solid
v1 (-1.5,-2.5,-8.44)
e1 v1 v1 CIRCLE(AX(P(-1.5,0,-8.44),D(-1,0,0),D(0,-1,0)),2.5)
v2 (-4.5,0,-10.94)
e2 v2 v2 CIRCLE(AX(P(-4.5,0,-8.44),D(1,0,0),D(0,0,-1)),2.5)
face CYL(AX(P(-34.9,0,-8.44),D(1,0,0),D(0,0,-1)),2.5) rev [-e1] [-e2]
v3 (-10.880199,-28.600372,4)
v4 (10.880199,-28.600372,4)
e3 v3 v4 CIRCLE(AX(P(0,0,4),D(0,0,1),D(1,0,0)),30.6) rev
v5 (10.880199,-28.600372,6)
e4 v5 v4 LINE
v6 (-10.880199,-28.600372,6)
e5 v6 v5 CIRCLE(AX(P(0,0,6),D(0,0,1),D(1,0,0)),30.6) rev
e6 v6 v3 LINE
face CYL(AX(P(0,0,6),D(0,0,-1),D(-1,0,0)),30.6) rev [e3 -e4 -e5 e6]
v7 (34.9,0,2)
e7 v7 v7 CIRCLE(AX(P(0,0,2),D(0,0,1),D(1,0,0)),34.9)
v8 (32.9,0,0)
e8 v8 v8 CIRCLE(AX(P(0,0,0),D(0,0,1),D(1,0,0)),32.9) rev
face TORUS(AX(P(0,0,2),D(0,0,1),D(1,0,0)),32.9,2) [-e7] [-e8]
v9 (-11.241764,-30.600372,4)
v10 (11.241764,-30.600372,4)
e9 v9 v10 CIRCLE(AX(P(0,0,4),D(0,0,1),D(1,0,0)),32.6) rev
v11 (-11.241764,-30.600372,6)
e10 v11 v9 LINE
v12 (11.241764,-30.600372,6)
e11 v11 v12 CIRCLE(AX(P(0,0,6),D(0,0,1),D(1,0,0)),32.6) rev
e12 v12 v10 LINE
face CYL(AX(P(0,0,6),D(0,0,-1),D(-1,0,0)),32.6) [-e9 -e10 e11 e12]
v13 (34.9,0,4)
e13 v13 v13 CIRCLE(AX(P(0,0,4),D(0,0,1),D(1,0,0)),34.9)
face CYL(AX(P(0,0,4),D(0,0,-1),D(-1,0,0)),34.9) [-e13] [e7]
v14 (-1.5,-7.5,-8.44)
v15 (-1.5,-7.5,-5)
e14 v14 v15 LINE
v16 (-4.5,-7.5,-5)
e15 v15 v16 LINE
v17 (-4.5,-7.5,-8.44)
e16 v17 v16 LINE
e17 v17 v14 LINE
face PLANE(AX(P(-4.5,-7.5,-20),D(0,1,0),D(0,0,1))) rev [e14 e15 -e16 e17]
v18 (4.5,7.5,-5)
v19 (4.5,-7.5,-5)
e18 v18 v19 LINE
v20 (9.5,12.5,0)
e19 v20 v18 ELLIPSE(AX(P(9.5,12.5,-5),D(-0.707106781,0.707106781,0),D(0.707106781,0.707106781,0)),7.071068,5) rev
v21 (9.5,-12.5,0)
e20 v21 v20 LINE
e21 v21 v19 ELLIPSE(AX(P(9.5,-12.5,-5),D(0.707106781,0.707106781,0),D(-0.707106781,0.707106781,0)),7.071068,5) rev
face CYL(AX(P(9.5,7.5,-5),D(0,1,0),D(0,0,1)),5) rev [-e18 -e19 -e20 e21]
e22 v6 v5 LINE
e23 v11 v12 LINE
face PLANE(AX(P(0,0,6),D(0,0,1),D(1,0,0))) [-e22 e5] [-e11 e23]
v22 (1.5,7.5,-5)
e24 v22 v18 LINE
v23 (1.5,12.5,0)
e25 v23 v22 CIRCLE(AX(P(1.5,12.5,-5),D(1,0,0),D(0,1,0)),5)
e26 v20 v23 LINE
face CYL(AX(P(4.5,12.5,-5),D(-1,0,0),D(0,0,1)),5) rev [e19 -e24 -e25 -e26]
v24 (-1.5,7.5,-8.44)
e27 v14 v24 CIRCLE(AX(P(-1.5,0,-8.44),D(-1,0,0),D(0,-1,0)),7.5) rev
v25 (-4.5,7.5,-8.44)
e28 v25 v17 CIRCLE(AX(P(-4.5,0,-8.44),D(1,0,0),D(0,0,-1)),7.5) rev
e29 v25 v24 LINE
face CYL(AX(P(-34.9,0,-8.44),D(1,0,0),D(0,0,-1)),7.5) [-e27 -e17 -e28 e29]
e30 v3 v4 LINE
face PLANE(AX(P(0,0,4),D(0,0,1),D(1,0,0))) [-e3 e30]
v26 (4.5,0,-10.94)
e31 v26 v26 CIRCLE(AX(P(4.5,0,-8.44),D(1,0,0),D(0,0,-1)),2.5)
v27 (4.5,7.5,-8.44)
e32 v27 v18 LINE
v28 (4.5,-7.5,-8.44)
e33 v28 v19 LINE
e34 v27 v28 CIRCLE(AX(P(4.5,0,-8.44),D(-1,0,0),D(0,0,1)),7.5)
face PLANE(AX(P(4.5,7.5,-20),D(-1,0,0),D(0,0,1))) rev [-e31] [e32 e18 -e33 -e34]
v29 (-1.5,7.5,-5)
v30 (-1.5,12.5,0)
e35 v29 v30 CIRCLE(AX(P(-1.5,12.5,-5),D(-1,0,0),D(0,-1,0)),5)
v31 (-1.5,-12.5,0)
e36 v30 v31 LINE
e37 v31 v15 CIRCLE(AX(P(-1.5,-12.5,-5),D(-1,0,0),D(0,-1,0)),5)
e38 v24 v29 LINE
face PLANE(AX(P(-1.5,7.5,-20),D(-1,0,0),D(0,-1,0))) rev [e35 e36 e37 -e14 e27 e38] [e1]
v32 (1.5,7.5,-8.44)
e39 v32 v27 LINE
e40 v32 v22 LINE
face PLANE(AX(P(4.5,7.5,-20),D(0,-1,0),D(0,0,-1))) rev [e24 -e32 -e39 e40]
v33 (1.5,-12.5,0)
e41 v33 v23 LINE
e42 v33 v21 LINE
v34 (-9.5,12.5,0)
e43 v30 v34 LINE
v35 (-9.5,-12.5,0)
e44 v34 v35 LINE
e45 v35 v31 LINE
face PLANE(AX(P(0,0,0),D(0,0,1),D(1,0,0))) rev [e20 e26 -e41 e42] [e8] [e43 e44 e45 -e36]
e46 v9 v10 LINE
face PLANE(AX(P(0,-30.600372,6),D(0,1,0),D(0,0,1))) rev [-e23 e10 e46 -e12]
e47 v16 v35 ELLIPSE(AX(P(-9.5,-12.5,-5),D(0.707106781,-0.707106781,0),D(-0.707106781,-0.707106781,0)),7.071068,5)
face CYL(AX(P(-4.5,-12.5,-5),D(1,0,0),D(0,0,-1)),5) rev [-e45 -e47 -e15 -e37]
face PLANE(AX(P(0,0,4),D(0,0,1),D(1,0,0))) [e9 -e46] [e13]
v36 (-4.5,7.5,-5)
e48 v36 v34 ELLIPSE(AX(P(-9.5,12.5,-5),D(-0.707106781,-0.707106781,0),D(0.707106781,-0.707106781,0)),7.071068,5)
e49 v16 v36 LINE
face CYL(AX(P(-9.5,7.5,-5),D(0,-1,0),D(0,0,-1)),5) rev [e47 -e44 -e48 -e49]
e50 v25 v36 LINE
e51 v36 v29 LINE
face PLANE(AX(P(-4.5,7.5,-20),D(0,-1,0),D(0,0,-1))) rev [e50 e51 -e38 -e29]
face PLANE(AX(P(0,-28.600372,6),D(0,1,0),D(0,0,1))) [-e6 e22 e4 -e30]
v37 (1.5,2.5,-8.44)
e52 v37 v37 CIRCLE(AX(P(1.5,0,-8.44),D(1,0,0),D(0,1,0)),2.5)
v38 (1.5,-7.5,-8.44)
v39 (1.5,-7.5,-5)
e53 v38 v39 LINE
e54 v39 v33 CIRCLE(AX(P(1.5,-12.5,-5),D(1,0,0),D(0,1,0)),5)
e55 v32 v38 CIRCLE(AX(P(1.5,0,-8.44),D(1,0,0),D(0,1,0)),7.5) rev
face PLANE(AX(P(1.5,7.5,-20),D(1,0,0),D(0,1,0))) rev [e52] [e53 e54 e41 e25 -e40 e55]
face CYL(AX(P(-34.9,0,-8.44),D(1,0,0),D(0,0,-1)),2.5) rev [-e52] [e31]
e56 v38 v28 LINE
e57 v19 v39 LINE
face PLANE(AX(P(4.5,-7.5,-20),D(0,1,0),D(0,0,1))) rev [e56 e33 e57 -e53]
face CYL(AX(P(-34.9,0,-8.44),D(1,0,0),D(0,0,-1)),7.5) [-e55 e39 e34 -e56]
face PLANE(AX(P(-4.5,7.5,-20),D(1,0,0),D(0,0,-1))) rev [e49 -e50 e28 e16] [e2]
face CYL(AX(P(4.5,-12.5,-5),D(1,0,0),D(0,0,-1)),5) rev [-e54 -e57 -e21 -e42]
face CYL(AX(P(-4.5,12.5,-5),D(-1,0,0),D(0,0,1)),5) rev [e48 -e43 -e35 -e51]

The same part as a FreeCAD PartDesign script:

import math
import FreeCAD as App
import Part
import Sketcher
from FreeCAD import Vector
Q = App.Units.Quantity


def edges_at(feature, points):
    """Names of the edges that pass closest to the given points."""
    edges = feature.Shape.Edges
    near = lambda p: min(range(len(edges)), key=lambda i: edges[i].distToShape(Part.Vertex(*p))[0])
    return sorted({f"Edge{near(p) + 1}" for p in points})


def add_polygon(sketch, points):
    """Adds a closed chain of lines whose ends are joined by coincident constraints."""
    first, n = sketch.GeometryCount, len(points)
    for a, b in zip(points, points[1:] + points[:1]):
        sketch.addGeometry(Part.LineSegment(App.Vector(*a, 0), App.Vector(*b, 0)), False)
    for i in range(n):
        sketch.addConstraint(Sketcher.Constraint("Coincident", first + i, 2, first + (i + 1) % n, 1))

doc = App.newDocument("Part")
body = doc.addObject("PartDesign::Body", "Body")

# Sketch on XY plane
sketch1 = body.newObject("Sketcher::SketchObject", "Sketch")
sketch1.AttachmentSupport = (doc.getObject("XY_Plane"), [""])
sketch1.MapMode = "FlatFace"
sketch1.addGeometry(Part.Circle(Vector(0, 0, 0), Vector(0, 0, 1), 34.9), False)
sketch1.addConstraint([
    Sketcher.Constraint("Coincident", 0, 3, -1, 1),
    Sketcher.Constraint("Diameter", 0, Q("69.8 mm")),
])
pad1 = body.newObject("PartDesign::Pad", "Pad")
pad1.Profile = sketch1
pad1.Length = 4

# Sketch on XY plane
sketch2 = body.newObject("Sketcher::SketchObject", "Sketch001")
sketch2.AttachmentSupport = (doc.getObject("XY_Plane"), [""])
sketch2.MapMode = "FlatFace"
add_polygon(sketch2, [(-1.5, 7.5), (-1.5, -7.5), (-4.5, -7.5), (-4.5, 7.5)])  # lines 0-3
add_polygon(sketch2, [(4.5, 7.5), (4.5, -7.5), (1.5, -7.5), (1.5, 7.5)])  # lines 4-7
sketch2.addConstraint([
    Sketcher.Constraint("Vertical", 0),
    Sketcher.Constraint("Horizontal", 1),
    Sketcher.Constraint("Vertical", 2),
    Sketcher.Constraint("Horizontal", 3),
    Sketcher.Constraint("Vertical", 4),
    Sketcher.Constraint("Horizontal", 5),
    Sketcher.Constraint("Vertical", 6),
    Sketcher.Constraint("Horizontal", 7),
    Sketcher.Constraint("Symmetric", 2, 2, 4, 2, -1, 1),
    Sketcher.Constraint("Symmetric", 0, 2, 6, 2, -1, 1),
    Sketcher.Constraint("Horizontal", 1, 2, 4, 2),
    Sketcher.Constraint("DistanceX", 1, 2, 1, 1, Q("3 mm")),
    Sketcher.Constraint("DistanceY", 0, 2, 0, 1, Q("15 mm")),
    Sketcher.Constraint("DistanceX", 0, 2, 4, 2, Q("6 mm")),
])
pad2 = body.newObject("PartDesign::Pad", "Pad001")
pad2.Profile = sketch2
pad2.Length = 20
pad2.Reversed = True

# Sketch on YZ plane
sketch3 = body.newObject("Sketcher::SketchObject", "Sketch002")
sketch3.AttachmentSupport = (doc.getObject("YZ_Plane"), [""])
sketch3.MapMode = "FlatFace"
sketch3.AttachmentOffset = App.Placement(Vector(0, 0, 4.5), App.Rotation())
sketch3.addGeometry([
    Part.LineSegment(Vector(7.5, -20, 0), Vector(7.5, -8.44, 0)),
    Part.ArcOfCircle(Part.Circle(Vector(0, -8.44, 0), Vector(0, 0, 1), 7.5), math.radians(180), math.radians(360)),
    Part.LineSegment(Vector(-7.5, -8.44, 0), Vector(-7.5, -20, 0)),
    Part.LineSegment(Vector(-7.5, -20, 0), Vector(7.5, -20, 0)),
], False)
sketch3.addConstraint([
    Sketcher.Constraint("Tangent", 0, 2, 1, 2),
    Sketcher.Constraint("Tangent", 1, 1, 2, 1),
    Sketcher.Constraint("Coincident", 2, 2, 3, 1),
    Sketcher.Constraint("Coincident", 3, 2, 0, 1),
    Sketcher.Constraint("Vertical", 0),
    Sketcher.Constraint("Vertical", 2),
    Sketcher.Constraint("Horizontal", 3),
    Sketcher.Constraint("PointOnObject", 1, 3, -2),
    Sketcher.Constraint("Radius", 1, Q("7.5 mm")),
    Sketcher.Constraint("DistanceY", 2, 2, -1, 1, Q("20 mm")),
    Sketcher.Constraint("DistanceY", 0, 1, 0, 2, Q("11.56 mm")),
])
pocket1 = body.newObject("PartDesign::Pocket", "Pocket")
pocket1.Profile = sketch3
pocket1.Type = "ThroughAll"
doc.recompute()

fillet = body.newObject("PartDesign::Fillet", "Fillet")
fillet.Base = (pocket1, edges_at(pocket1, [
    (-3, 7.5, 0),
    (-3, -7.5, 0),
    (-4.5, 0, 0),
    (4.5, 0, 0),
    (3, -7.5, 0),
    (3, 7.5, 0),
]))
fillet.Radius = 5

# Sketch on YZ plane
sketch4 = body.newObject("Sketcher::SketchObject", "Sketch003")
sketch4.AttachmentSupport = (doc.getObject("YZ_Plane"), [""])
sketch4.MapMode = "FlatFace"
sketch4.AttachmentOffset = App.Placement(Vector(0, 0, 4.5), App.Rotation())
sketch4.addGeometry(Part.Circle(Vector(0, -8.44, 0), Vector(0, 0, 1), 2.5), False)
sketch4.addConstraint([
    Sketcher.Constraint("PointOnObject", 0, 3, -2),
    Sketcher.Constraint("Diameter", 0, Q("5 mm")),
    Sketcher.Constraint("DistanceY", 0, 3, -1, 1, Q("8.44 mm")),
])
pocket2 = body.newObject("PartDesign::Pocket", "Pocket001")
pocket2.Profile = sketch4
pocket2.Type = "ThroughAll"

# Sketch on XY plane
sketch5 = body.newObject("Sketcher::SketchObject", "Sketch004")
sketch5.AttachmentSupport = (doc.getObject("XY_Plane"), [""])
sketch5.MapMode = "FlatFace"
sketch5.AttachmentOffset = App.Placement(Vector(0, 0, 4), App.Rotation())
sketch5.addGeometry([
    Part.ArcOfCircle(Part.Circle(Vector(0, 0, 0), Vector(0, 0, 1), 32.6), math.radians(-69.828009), math.radians(249.828009)),
    Part.LineSegment(Vector(-11.241764, -30.600372, 0), Vector(11.241764, -30.600372, 0)),
    Part.ArcOfCircle(Part.Circle(Vector(0, 0, 0), Vector(0, 0, 1), 30.6), math.radians(-69.172104), math.radians(249.172104)),
    Part.LineSegment(Vector(10.880199, -28.600372, 0), Vector(-10.880199, -28.600372, 0)),
], False)
sketch5.addConstraint([
    Sketcher.Constraint("Coincident", 0, 1, 1, 2),
    Sketcher.Constraint("Coincident", 1, 1, 0, 2),
    Sketcher.Constraint("Coincident", 2, 1, 3, 1),
    Sketcher.Constraint("Coincident", 3, 2, 2, 2),
    Sketcher.Constraint("Horizontal", 1),
    Sketcher.Constraint("Horizontal", 3),
    Sketcher.Constraint("Coincident", 0, 3, -1, 1),
    Sketcher.Constraint("Coincident", 2, 3, -1, 1),
    Sketcher.Constraint("Radius", 0, Q("32.6 mm")),
    Sketcher.Constraint("Radius", 2, Q("30.6 mm")),
    Sketcher.Constraint("DistanceY", 0, 1, 2, 1, Q("2 mm")),
    Sketcher.Constraint("DistanceX", 3, 2, 3, 1, Q("21.760398 mm")),
])
pad3 = body.newObject("PartDesign::Pad", "Pad002")
pad3.Profile = sketch5
pad3.Length = 2
doc.recompute()

fillet2 = body.newObject("PartDesign::Fillet", "Fillet001")
fillet2.Base = (pad3, edges_at(pad3, [(-34.9, 0, 0)]))
fillet2.Radius = 2

doc.recompute()
